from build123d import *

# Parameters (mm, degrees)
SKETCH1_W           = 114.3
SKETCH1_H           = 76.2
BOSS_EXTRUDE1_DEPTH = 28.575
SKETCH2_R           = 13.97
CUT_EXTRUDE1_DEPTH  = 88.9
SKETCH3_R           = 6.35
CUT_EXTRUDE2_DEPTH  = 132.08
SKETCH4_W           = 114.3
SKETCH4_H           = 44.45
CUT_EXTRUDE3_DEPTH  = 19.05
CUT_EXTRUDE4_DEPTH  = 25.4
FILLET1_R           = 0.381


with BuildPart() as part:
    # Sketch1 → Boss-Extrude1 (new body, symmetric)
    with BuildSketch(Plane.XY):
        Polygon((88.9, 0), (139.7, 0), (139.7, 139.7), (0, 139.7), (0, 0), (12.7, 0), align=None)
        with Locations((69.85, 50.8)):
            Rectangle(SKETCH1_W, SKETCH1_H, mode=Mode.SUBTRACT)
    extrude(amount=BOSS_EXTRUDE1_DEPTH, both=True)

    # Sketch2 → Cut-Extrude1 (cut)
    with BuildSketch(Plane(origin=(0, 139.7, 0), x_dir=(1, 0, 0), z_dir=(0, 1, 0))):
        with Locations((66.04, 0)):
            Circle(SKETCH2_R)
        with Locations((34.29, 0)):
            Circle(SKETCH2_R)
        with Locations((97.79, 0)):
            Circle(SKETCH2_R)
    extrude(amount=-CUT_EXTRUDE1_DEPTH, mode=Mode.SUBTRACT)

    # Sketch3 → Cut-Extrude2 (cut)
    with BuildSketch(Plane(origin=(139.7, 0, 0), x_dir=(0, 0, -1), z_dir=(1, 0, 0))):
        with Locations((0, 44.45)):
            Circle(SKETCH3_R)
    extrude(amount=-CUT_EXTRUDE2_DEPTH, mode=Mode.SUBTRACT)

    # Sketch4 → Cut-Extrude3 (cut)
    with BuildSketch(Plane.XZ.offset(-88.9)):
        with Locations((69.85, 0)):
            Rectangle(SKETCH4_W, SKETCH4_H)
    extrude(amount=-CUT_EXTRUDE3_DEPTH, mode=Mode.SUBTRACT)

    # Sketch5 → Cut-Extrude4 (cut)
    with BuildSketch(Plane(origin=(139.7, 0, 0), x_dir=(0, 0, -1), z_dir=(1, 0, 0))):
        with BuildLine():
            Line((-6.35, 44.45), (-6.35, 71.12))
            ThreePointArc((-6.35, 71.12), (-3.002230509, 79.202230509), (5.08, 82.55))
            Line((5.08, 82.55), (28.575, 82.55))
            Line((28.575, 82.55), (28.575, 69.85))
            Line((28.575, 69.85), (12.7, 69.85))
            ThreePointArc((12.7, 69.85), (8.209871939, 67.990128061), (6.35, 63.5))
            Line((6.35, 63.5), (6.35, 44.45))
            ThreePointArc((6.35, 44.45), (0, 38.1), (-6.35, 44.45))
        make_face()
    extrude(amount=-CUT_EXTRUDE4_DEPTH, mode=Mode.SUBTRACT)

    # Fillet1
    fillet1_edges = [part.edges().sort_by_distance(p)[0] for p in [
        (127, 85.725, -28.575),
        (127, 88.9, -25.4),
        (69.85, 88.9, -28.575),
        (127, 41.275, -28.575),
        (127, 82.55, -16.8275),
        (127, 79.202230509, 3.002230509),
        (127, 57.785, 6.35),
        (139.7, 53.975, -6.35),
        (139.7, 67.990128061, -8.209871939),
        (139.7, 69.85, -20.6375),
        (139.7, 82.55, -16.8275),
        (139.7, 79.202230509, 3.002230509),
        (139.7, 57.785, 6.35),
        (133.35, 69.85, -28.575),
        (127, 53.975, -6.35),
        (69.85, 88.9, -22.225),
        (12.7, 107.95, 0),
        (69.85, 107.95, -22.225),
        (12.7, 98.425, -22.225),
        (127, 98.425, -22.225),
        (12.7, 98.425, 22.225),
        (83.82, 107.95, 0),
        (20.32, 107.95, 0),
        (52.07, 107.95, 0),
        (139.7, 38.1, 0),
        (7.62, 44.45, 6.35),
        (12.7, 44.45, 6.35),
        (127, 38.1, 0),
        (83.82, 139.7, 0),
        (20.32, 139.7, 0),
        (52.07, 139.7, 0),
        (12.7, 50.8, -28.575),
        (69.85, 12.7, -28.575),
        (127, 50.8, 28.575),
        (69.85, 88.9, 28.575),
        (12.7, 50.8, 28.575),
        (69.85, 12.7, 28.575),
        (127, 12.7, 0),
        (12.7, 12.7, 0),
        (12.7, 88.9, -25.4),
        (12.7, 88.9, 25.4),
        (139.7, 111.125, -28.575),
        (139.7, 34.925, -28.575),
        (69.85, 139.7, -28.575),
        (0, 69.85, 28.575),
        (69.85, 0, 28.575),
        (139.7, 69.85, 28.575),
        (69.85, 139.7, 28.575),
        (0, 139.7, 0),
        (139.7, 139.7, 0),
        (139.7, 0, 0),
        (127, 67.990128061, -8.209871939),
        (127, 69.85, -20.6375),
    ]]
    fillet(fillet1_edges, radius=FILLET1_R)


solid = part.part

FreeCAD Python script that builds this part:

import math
import FreeCAD as App
import Part
import Sketcher
Q = App.Units.Quantity


def edges_at(feature, points):
    """Names of the edges that pass closest to the given points."""
    edges = feature.Shape.Edges
    near = lambda p: min(range(len(edges)), key=lambda i: edges[i].distToShape(Part.Vertex(*p))[0])
    return sorted({f"Edge{near(p) + 1}" for p in points})

doc = App.newDocument("Part")
body = doc.addObject("PartDesign::Body", "Body")

# Sketch on XY plane
sketch1 = doc.addObject("Sketcher::SketchObject", "Sketch")
body.addObject(sketch1)
sketch1.AttachmentSupport = (doc.XY_Plane, [""])
sketch1.MapMode = "FlatFace"
sketch1.addGeometry(Part.LineSegment(App.Vector(140, 0, 0), App.Vector(140, 140, 0)), False)
sketch1.addGeometry(Part.LineSegment(App.Vector(140, 140, 0), App.Vector(0, 140, 0)), False)
sketch1.addGeometry(Part.LineSegment(App.Vector(0, 140, 0), App.Vector(0, 0, 0)), False)
sketch1.addGeometry(Part.LineSegment(App.Vector(0, 0, 0), App.Vector(140, 0, 0)), False)
sketch1.addGeometry(Part.LineSegment(App.Vector(127, 13, 0), App.Vector(13, 13, 0)), False)
sketch1.addGeometry(Part.LineSegment(App.Vector(13, 13, 0), App.Vector(13, 89, 0)), False)
sketch1.addGeometry(Part.LineSegment(App.Vector(13, 89, 0), App.Vector(127, 89, 0)), False)
sketch1.addGeometry(Part.LineSegment(App.Vector(127, 89, 0), App.Vector(127, 13, 0)), False)
sketch1.addConstraint(Sketcher.Constraint("Coincident", 0, 2, 1, 1))
sketch1.addConstraint(Sketcher.Constraint("Coincident", 1, 2, 2, 1))
sketch1.addConstraint(Sketcher.Constraint("Coincident", 2, 2, 3, 1))
sketch1.addConstraint(Sketcher.Constraint("Coincident", 3, 2, 0, 1))
sketch1.addConstraint(Sketcher.Constraint("Coincident", 4, 2, 5, 1))
sketch1.addConstraint(Sketcher.Constraint("Coincident", 5, 2, 6, 1))
sketch1.addConstraint(Sketcher.Constraint("Coincident", 6, 2, 7, 1))
sketch1.addConstraint(Sketcher.Constraint("Coincident", 7, 2, 4, 1))
sketch1.addConstraint(Sketcher.Constraint("Vertical", 0))
sketch1.addConstraint(Sketcher.Constraint("Horizontal", 1))
sketch1.addConstraint(Sketcher.Constraint("Vertical", 2))
sketch1.addConstraint(Sketcher.Constraint("Horizontal", 3))
sketch1.addConstraint(Sketcher.Constraint("Horizontal", 4))
sketch1.addConstraint(Sketcher.Constraint("Vertical", 5))
sketch1.addConstraint(Sketcher.Constraint("Horizontal", 6))
sketch1.addConstraint(Sketcher.Constraint("Vertical", 7))
sketch1.addConstraint(Sketcher.Constraint("Coincident", 2, 2, -1, 1))
sketch1.addConstraint(Sketcher.Constraint("Equal", 3, 0))
sketch1.addConstraint(Sketcher.Constraint("DistanceY", 5, 1, 5, 2, Q("3 in")))
sketch1.addConstraint(Sketcher.Constraint("DistanceX", 1, 2, 1, 1, Q("5.5 in")))
sketch1.addConstraint(Sketcher.Constraint("DistanceX", 4, 2, 4, 1, Q("4.5 in")))
sketch1.addConstraint(Sketcher.Constraint("DistanceX", -1, 1, 6, 2, Q("5 in")))
sketch1.addConstraint(Sketcher.Constraint("DistanceY", 4, 2, 1, 2, Q("5 in")))
pad1 = doc.addObject("PartDesign::Pad", "Pad")
body.addObject(pad1)
pad1.Profile = sketch1
pad1.Length = Q("2.25 in")
pad1.Midplane = True

# Sketch on XZ plane
sketch2 = doc.addObject("Sketcher::SketchObject", "Sketch001")
body.addObject(sketch2)
sketch2.AttachmentSupport = (doc.XZ_Plane, [""])
sketch2.MapMode = "FlatFace"
sketch2.AttachmentOffset = App.Placement(App.Vector(0, 0, -5.5 * 25.4), App.Rotation())
sketch2.addGeometry(Part.Circle(App.Vector(66, 0, 0), App.Vector(0, 0, 1), 14), False)
sketch2.addGeometry(Part.Circle(App.Vector(34, 0, 0), App.Vector(0, 0, 1), 14), False)
sketch2.addGeometry(Part.Circle(App.Vector(98, 0, 0), App.Vector(0, 0, 1), 14), False)
sketch2.addConstraint(Sketcher.Constraint("Equal", 0, 1))
sketch2.addConstraint(Sketcher.Constraint("Equal", 1, 2))
sketch2.addConstraint(Sketcher.Constraint("PointOnObject", 0, 3, -1))
sketch2.addConstraint(Sketcher.Constraint("PointOnObject", 1, 3, -1))
sketch2.addConstraint(Sketcher.Constraint("PointOnObject", 2, 3, -1))
sketch2.addConstraint(Sketcher.Constraint("Diameter", 0, Q("1.1 in")))
sketch2.addConstraint(Sketcher.Constraint("DistanceX", -1, 1, 0, 3, Q("2.6 in")))
sketch2.addConstraint(Sketcher.Constraint("DistanceX", 1, 3, 2, 3, Q("2.5 in")))
sketch2.addConstraint(Sketcher.Constraint("DistanceX", -1, 1, 1, 3, Q("1.35 in")))
pocket1 = doc.addObject("PartDesign::Pocket", "Pocket")
body.addObject(pocket1)
pocket1.Profile = sketch2
pocket1.Length = Q("3.5 in")
pocket1.Reversed = True

# Sketch on YZ plane
sketch3 = doc.addObject("Sketcher::SketchObject", "Sketch002")
body.addObject(sketch3)
sketch3.AttachmentSupport = (doc.YZ_Plane, [""])
sketch3.MapMode = "FlatFace"
sketch3.AttachmentOffset = App.Placement(App.Vector(0, 0, 5.5 * 25.4), App.Rotation())
sketch3.addGeometry(Part.Circle(App.Vector(44, 0, 0), App.Vector(0, 0, 1), 6), False)
sketch3.addConstraint(Sketcher.Constraint("PointOnObject", 0, 3, -1))
sketch3.addConstraint(Sketcher.Constraint("Diameter", 0, Q("0.5 in")))
sketch3.addConstraint(Sketcher.Constraint("DistanceX", -1, 1, 0, 3, Q("1.75 in")))
pocket2 = doc.addObject("PartDesign::Pocket", "Pocket001")
body.addObject(pocket2)
pocket2.Profile = sketch3
pocket2.Length = Q("5.2 in")

# Sketch on XZ plane
sketch4 = doc.addObject("Sketcher::SketchObject", "Sketch003")
body.addObject(sketch4)
sketch4.AttachmentSupport = (doc.XZ_Plane, [""])
sketch4.MapMode = "FlatFace"
sketch4.AttachmentOffset = App.Placement(App.Vector(0, 0, -3.5 * 25.4), App.Rotation())
sketch4.addGeometry(Part.LineSegment(App.Vector(13, 22, 0), App.Vector(13, -22, 0)), False)
sketch4.addGeometry(Part.LineSegment(App.Vector(13, -22, 0), App.Vector(127, -22, 0)), False)
sketch4.addGeometry(Part.LineSegment(App.Vector(127, -22, 0), App.Vector(127, 22, 0)), False)
sketch4.addGeometry(Part.LineSegment(App.Vector(127, 22, 0), App.Vector(13, 22, 0)), False)
sketch4.addConstraint(Sketcher.Constraint("Coincident", 0, 2, 1, 1))
sketch4.addConstraint(Sketcher.Constraint("Coincident", 1, 2, 2, 1))
sketch4.addConstraint(Sketcher.Constraint("Coincident", 2, 2, 3, 1))
sketch4.addConstraint(Sketcher.Constraint("Coincident", 3, 2, 0, 1))
sketch4.addConstraint(Sketcher.Constraint("Vertical", 0))
sketch4.addConstraint(Sketcher.Constraint("Horizontal", 1))
sketch4.addConstraint(Sketcher.Constraint("Vertical", 2))
sketch4.addConstraint(Sketcher.Constraint("Horizontal", 3))
sketch4.addConstraint(Sketcher.Constraint("DistanceX", 1, 1, 1, 2, Q("4.5 in")))
sketch4.addConstraint(Sketcher.Constraint("DistanceX", -1, 1, 1, 2, Q("5 in")))
sketch4.addConstraint(Sketcher.Constraint("DistanceY", 0, 2, 0, 1, Q("1.75 in")))
sketch4.addConstraint(Sketcher.Constraint("DistanceY", 0, 2, -1, 1, Q("0.875 in")))
pocket3 = doc.addObject("PartDesign::Pocket", "Pocket002")
body.addObject(pocket3)
pocket3.Profile = sketch4
pocket3.Length = Q("0.75 in")

# Sketch on YZ plane
sketch5 = doc.addObject("Sketcher::SketchObject", "Sketch004")
body.addObject(sketch5)
sketch5.AttachmentSupport = (doc.YZ_Plane, [""])
sketch5.MapMode = "FlatFace"
sketch5.AttachmentOffset = App.Placement(App.Vector(0, 0, 5.5 * 25.4), App.Rotation())
sketch5.addGeometry(Part.LineSegment(App.Vector(71, 6, 0), App.Vector(44, 6, 0)), False)
sketch5.addGeometry(Part.ArcOfCircle(Part.Circle(App.Vector(44, 0, 0), App.Vector(0, 0, 1), 6), math.radians(90), math.radians(270)), False)
sketch5.addGeometry(Part.LineSegment(App.Vector(44, -6, 0), App.Vector(64, -6, 0)), False)
sketch5.addGeometry(Part.ArcOfCircle(Part.Circle(App.Vector(64, -13, 0), App.Vector(0, 0, 1), 6), math.radians(0), math.radians(90)), False)
sketch5.addGeometry(Part.LineSegment(App.Vector(70, -13, 0), App.Vector(70, -29, 0)), False)
sketch5.addGeometry(Part.LineSegment(App.Vector(70, -29, 0), App.Vector(83, -29, 0)), False)
sketch5.addGeometry(Part.LineSegment(App.Vector(83, -29, 0), App.Vector(83, -5, 0)), False)
sketch5.addGeometry(Part.ArcOfCircle(Part.Circle(App.Vector(71, -5, 0), App.Vector(0, 0, 1), 11), math.radians(0), math.radians(90)), False)
sketch5.addConstraint(Sketcher.Constraint("Tangent", 0, 2, 1, 1))
sketch5.addConstraint(Sketcher.Constraint("Tangent", 1, 2, 2, 1))
sketch5.addConstraint(Sketcher.Constraint("Tangent", 2, 2, 3, 2))
sketch5.addConstraint(Sketcher.Constraint("Tangent", 3, 1, 4, 1))
sketch5.addConstraint(Sketcher.Constraint("Coincident", 4, 2, 5, 1))
sketch5.addConstraint(Sketcher.Constraint("Coincident", 5, 2, 6, 1))
sketch5.addConstraint(Sketcher.Constraint("Tangent", 6, 2, 7, 1))
sketch5.addConstraint(Sketcher.Constraint("Tangent", 7, 2, 0, 1))
sketch5.addConstraint(Sketcher.Constraint("Horizontal", 0))
sketch5.addConstraint(Sketcher.Constraint("Horizontal", 2))
sketch5.addConstraint(Sketcher.Constraint("Vertical", 4))
sketch5.addConstraint(Sketcher.Constraint("Horizontal", 5))
sketch5.addConstraint(Sketcher.Constraint("Vertical", 6))
sketch5.addConstraint(Sketcher.Constraint("Equal", 1, 3))
sketch5.addConstraint(Sketcher.Constraint("PointOnObject", 1, 3, -1))
sketch5.addConstraint(Sketcher.Constraint("Radius", 1, Q("0.25 in")))
sketch5.addConstraint(Sketcher.Constraint("Radius", 7, Q("0.45 in")))
sketch5.addConstraint(Sketcher.Constraint("DistanceX", 5, 1, 5, 2, Q("0.5 in")))
sketch5.addConstraint(Sketcher.Constraint("DistanceX", 1, 2, 3, 1, Q("1 in")))
sketch5.addConstraint(Sketcher.Constraint("DistanceX", -1, 1, 3, 3, Q("2.5 in")))
sketch5.addConstraint(Sketcher.Constraint("DistanceY", 4, 2, 4, 1, Q("0.625 in")))
pocket4 = doc.addObject("PartDesign::Pocket", "Pocket003")
body.addObject(pocket4)
pocket4.Profile = sketch5
pocket4.Length = Q("1 in")
doc.recompute()

fillet = doc.addObject("PartDesign::Fillet", "Fillet")
body.addObject(fillet)
fillet.Base = (pocket4, edges_at(pocket4, [
    (127, 85.725, -28.575),
    (127, 88.9, -25.4),
    (69.85, 88.9, -28.575),
    (127, 41.275, -28.575),
    (127, 82.55, -16.828),
    (127, 79.202, 3.002),
    (127, 57.785, 6.35),
    (139.7, 53.975, -6.35),
    (139.7, 67.99, -8.21),
    (139.7, 69.85, -20.637),
    (139.7, 82.55, -16.828),
    (139.7, 79.202, 3.002),
    (139.7, 57.785, 6.35),
    (133.35, 69.85, -28.575),
    (127, 53.975, -6.35),
    (69.85, 88.9, -22.225),
    (12.7, 107.95, 0),
    (69.85, 107.95, -22.225),
    (12.7, 98.425, -22.225),
    (127, 98.425, -22.225),
    (12.7, 98.425, 22.225),
    (83.82, 107.95, 0),
    (20.32, 107.95, 0),
    (52.07, 107.95, 0),
    (139.7, 38.1, 0),
    (7.62, 44.45, 6.35),
    (12.7, 44.45, 6.35),
    (127, 38.1, 0),
    (83.82, 139.7, 0),
    (20.32, 139.7, 0),
    (52.07, 139.7, 0),
    (12.7, 50.8, -28.575),
    (69.85, 12.7, -28.575),
    (127, 50.8, 28.575),
    (69.85, 88.9, 28.575),
    (12.7, 50.8, 28.575),
    (69.85, 12.7, 28.575),
    (127, 12.7, 0),
    (12.7, 12.7, 0),
    (12.7, 88.9, -25.4),
    (12.7, 88.9, 25.4),
    (139.7, 111.125, -28.575),
    (139.7, 34.925, -28.575),
    (69.85, 139.7, -28.575),
    (0, 69.85, 28.575),
    (69.85, 0, 28.575),
    (139.7, 69.85, 28.575),
    (69.85, 139.7, 28.575),
    (0, 139.7, 0),
    (139.7, 139.7, 0),
    (139.7, 0, 0),
    (127, 67.99, -8.21),
    (127, 69.85, -20.637),
]))
fillet.Radius = Q("0.015 in")

doc.recompute()
